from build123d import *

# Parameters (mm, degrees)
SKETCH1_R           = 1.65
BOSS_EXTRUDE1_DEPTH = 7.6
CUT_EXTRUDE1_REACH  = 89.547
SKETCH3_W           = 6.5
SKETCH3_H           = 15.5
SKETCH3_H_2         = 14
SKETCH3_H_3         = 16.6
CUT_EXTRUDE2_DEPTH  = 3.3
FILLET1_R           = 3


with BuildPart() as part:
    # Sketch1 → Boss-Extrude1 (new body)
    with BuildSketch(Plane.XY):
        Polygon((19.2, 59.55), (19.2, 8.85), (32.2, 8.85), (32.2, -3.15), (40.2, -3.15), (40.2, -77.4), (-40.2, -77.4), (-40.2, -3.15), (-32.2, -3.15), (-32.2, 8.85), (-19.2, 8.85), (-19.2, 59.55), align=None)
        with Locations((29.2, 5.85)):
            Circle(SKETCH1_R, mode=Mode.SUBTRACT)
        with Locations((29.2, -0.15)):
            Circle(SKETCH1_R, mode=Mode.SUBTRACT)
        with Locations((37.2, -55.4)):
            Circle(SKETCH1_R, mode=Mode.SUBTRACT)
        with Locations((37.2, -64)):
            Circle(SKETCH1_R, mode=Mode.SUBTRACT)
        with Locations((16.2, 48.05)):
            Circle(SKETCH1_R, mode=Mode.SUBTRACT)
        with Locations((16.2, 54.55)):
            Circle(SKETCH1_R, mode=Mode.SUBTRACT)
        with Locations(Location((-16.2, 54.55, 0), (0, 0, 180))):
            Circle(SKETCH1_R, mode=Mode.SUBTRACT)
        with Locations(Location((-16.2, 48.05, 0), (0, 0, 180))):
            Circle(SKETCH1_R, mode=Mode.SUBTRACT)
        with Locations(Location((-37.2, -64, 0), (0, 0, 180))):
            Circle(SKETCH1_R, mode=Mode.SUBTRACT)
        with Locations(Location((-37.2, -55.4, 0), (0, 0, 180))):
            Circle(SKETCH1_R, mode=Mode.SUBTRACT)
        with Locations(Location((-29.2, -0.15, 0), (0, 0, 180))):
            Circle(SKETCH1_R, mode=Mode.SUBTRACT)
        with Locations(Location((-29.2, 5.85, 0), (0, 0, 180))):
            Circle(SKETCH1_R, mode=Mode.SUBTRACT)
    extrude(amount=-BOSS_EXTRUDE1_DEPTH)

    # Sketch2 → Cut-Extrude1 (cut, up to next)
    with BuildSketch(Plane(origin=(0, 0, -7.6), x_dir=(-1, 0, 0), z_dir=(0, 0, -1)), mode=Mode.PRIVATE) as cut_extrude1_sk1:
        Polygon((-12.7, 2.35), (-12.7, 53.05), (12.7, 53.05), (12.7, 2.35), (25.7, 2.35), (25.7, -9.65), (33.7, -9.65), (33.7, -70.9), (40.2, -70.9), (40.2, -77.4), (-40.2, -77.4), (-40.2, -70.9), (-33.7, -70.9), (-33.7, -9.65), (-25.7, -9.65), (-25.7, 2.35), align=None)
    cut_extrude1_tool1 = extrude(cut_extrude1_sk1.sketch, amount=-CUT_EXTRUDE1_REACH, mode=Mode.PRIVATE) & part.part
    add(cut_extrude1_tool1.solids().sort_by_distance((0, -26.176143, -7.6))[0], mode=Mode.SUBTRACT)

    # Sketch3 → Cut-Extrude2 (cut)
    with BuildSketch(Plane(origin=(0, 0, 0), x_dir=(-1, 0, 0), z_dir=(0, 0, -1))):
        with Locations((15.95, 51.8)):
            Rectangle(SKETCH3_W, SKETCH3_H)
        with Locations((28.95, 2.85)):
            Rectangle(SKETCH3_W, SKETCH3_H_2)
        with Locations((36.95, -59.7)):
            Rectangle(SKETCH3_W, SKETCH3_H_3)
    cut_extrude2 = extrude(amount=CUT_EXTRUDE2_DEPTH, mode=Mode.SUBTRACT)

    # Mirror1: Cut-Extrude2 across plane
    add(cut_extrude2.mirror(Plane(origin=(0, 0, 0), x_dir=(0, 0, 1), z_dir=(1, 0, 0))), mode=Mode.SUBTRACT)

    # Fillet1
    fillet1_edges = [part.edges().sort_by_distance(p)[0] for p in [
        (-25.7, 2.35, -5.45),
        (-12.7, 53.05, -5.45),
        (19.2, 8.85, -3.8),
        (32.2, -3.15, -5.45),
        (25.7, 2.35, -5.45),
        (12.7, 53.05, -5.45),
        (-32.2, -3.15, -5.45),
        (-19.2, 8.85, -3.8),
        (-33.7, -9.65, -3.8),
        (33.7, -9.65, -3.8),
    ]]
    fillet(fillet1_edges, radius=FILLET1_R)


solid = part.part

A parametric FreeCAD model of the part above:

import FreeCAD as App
import Part
import Sketcher
from FreeCAD import Vector
Q = App.Units.Quantity


def edges_at(feature, points):
    """Names of the edges that pass closest to the given points."""
    edges = feature.Shape.Edges
    near = lambda p: min(range(len(edges)), key=lambda i: edges[i].distToShape(Part.Vertex(*p))[0])
    return sorted({f"Edge{near(p) + 1}" for p in points})

doc = App.newDocument("Part")
body = doc.addObject("PartDesign::Body", "Body")

sketch1 = body.newObject("Sketcher::SketchObject", "Sketch")
sketch1.AttachmentSupport = (doc.getObject("XY_Plane"), [""])
sketch1.MapMode = "FlatFace"
sketch1.addGeometry([
    Part.LineSegment(Vector(19.2, 8.8, 0), Vector(19.2, 59.5, 0)),
    Part.LineSegment(Vector(19.2, 59.5, 0), Vector(-19.2, 59.5, 0)),
    Part.LineSegment(Vector(-19.2, 59.5, 0), Vector(-19.2, 8.8, 0)),
    Part.LineSegment(Vector(-19.2, 8.8, 0), Vector(-32.2, 8.8, 0)),
    Part.LineSegment(Vector(-32.2, 8.8, 0), Vector(-32.2, -3.1, 0)),
    Part.LineSegment(Vector(-32.2, -3.1, 0), Vector(-40.2, -3.1, 0)),
    Part.LineSegment(Vector(-40.2, -3.1, 0), Vector(-40.2, -77.4, 0)),
    Part.LineSegment(Vector(-40.2, -77.4, 0), Vector(40.2, -77.4, 0)),
    Part.LineSegment(Vector(40.2, -77.4, 0), Vector(40.2, -3.1, 0)),
    Part.LineSegment(Vector(40.2, -3.1, 0), Vector(32.2, -3.1, 0)),
    Part.LineSegment(Vector(32.2, -3.1, 0), Vector(32.2, 8.8, 0)),
    Part.LineSegment(Vector(32.2, 8.8, 0), Vector(19.2, 8.8, 0)),
    Part.Circle(Vector(37.2, -64, 0), Vector(0, 0, 1), 1.6),
    Part.Circle(Vector(37.2, -55.4, 0), Vector(0, 0, 1), 1.6),
    Part.Circle(Vector(-37.2, -64, 0), Vector(0, 0, 1), 1.6),
    Part.Circle(Vector(-37.2, -55.4, 0), Vector(0, 0, 1), 1.6),
    Part.Circle(Vector(29.2, -0.1, 0), Vector(0, 0, 1), 1.6),
    Part.Circle(Vector(29.2, 5.8, 0), Vector(0, 0, 1), 1.6),
    Part.Circle(Vector(16.2, 48, 0), Vector(0, 0, 1), 1.6),
    Part.Circle(Vector(16.2, 54.5, 0), Vector(0, 0, 1), 1.6),
    Part.Circle(Vector(-29.2, -0.1, 0), Vector(0, 0, 1), 1.6),
    Part.Circle(Vector(-29.2, 5.8, 0), Vector(0, 0, 1), 1.6),
    Part.Circle(Vector(-16.2, 48, 0), Vector(0, 0, 1), 1.6),
    Part.Circle(Vector(-16.2, 54.5, 0), Vector(0, 0, 1), 1.6),
], False)
sketch1.addConstraint([
    Sketcher.Constraint("Coincident", 0, 2, 1, 1),
    Sketcher.Constraint("Coincident", 1, 2, 2, 1),
    Sketcher.Constraint("Coincident", 2, 2, 3, 1),
    Sketcher.Constraint("Coincident", 3, 2, 4, 1),
    Sketcher.Constraint("Coincident", 4, 2, 5, 1),
    Sketcher.Constraint("Coincident", 5, 2, 6, 1),
    Sketcher.Constraint("Coincident", 6, 2, 7, 1),
    Sketcher.Constraint("Coincident", 7, 2, 8, 1),
    Sketcher.Constraint("Coincident", 8, 2, 9, 1),
    Sketcher.Constraint("Coincident", 9, 2, 10, 1),
    Sketcher.Constraint("Coincident", 10, 2, 11, 1),
    Sketcher.Constraint("Coincident", 11, 2, 0, 1),
    Sketcher.Constraint("Vertical", 0),
    Sketcher.Constraint("Horizontal", 1),
    Sketcher.Constraint("Vertical", 2),
    Sketcher.Constraint("Horizontal", 3),
    Sketcher.Constraint("Vertical", 4),
    Sketcher.Constraint("Horizontal", 5),
    Sketcher.Constraint("Vertical", 6),
    Sketcher.Constraint("Horizontal", 7),
    Sketcher.Constraint("Vertical", 8),
    Sketcher.Constraint("Horizontal", 9),
    Sketcher.Constraint("Vertical", 10),
    Sketcher.Constraint("Horizontal", 11),
    Sketcher.Constraint("Equal", 12, 13),
    Sketcher.Constraint("Equal", 13, 14),
    Sketcher.Constraint("Equal", 14, 15),
    Sketcher.Constraint("Equal", 15, 16),
    Sketcher.Constraint("Equal", 16, 17),
    Sketcher.Constraint("Equal", 17, 18),
    Sketcher.Constraint("Equal", 18, 19),
    Sketcher.Constraint("Equal", 19, 20),
    Sketcher.Constraint("Equal", 20, 21),
    Sketcher.Constraint("Equal", 21, 22),
    Sketcher.Constraint("Equal", 22, 23),
    Sketcher.Constraint("Symmetric", 12, 3, 14, 3, -2),
    Sketcher.Constraint("Symmetric", 13, 3, 15, 3, -2),
    Sketcher.Constraint("Symmetric", 16, 3, 20, 3, -2),
    Sketcher.Constraint("Symmetric", 17, 3, 21, 3, -2),
    Sketcher.Constraint("Symmetric", 18, 3, 22, 3, -2),
    Sketcher.Constraint("Symmetric", 19, 3, 23, 3, -2),
    Sketcher.Constraint("Symmetric", 5, 2, 8, 2, -2),
    Sketcher.Constraint("Symmetric", 3, 2, 10, 2, -2),
    Sketcher.Constraint("Vertical", 12, 3, 13, 3),
    Sketcher.Constraint("Vertical", 16, 3, 17, 3),
    Sketcher.Constraint("Vertical", 18, 3, 19, 3),
    Sketcher.Constraint("Equal", 3, 11),
    Sketcher.Constraint("Diameter", 12, Q("3.3 mm")),
    Sketcher.Constraint("DistanceX", 3, 2, 3, 1, Q("13 mm")),
    Sketcher.Constraint("DistanceX", 5, 2, 5, 1, Q("8 mm")),
    Sketcher.Constraint("DistanceY", 4, 2, 4, 1, Q("12 mm")),
    Sketcher.Constraint("DistanceX", 1, 2, 1, 1, Q("38.4 mm")),
    Sketcher.Constraint("DistanceY", 0, 1, 0, 2, Q("50.7 mm")),
    Sketcher.Constraint("DistanceY", 12, 3, -1, 1, Q("64 mm")),
    Sketcher.Constraint("DistanceX", 16, 3, 13, 3, Q("8 mm")),
    Sketcher.Constraint("DistanceY", 16, 3, 17, 3, Q("6 mm")),
    Sketcher.Constraint("DistanceX", 18, 3, 17, 3, Q("13 mm")),
    Sketcher.Constraint("DistanceX", 19, 3, 0, 2, Q("3 mm")),
    Sketcher.Constraint("DistanceY", 19, 3, 0, 2, Q("5 mm")),
    Sketcher.Constraint("DistanceY", 21, 3, 2, 2, Q("3 mm")),
    Sketcher.Constraint("DistanceY", 6, 2, 15, 3, Q("22 mm")),
    Sketcher.Constraint("DistanceY", 6, 2, 6, 1, Q("74.25 mm")),
    Sketcher.Constraint("DistanceY", 13, 3, -1, 1, Q("55.4 mm")),
    Sketcher.Constraint("DistanceY", 17, 3, 18, 3, Q("42.2 mm")),
])
pad1 = body.newObject("PartDesign::Pad", "Pad")
pad1.Profile = sketch1
pad1.Length = 7.6
pad1.Reversed = True

sketch2 = body.newObject("Sketcher::SketchObject", "Sketch001")
sketch2.AttachmentSupport = (doc.getObject("XY_Plane"), [""])
sketch2.MapMode = "FlatFace"
sketch2.AttachmentOffset = App.Placement(Vector(0, 0, -7.6), App.Rotation())
sketch2.addGeometry([
    Part.LineSegment(Vector(13, 53, 0), Vector(13, 2, 0)),
    Part.LineSegment(Vector(13, 2, 0), Vector(26, 2, 0)),
    Part.LineSegment(Vector(26, 2, 0), Vector(26, -10, 0)),
    Part.LineSegment(Vector(26, -10, 0), Vector(34, -10, 0)),
    Part.LineSegment(Vector(34, -10, 0), Vector(34, -71, 0)),
    Part.LineSegment(Vector(34, -71, 0), Vector(40, -71, 0)),
    Part.LineSegment(Vector(40, -71, 0), Vector(40, -77, 0)),
    Part.LineSegment(Vector(40, -77, 0), Vector(-40, -77, 0)),
    Part.LineSegment(Vector(-40, -77, 0), Vector(-40, -71, 0)),
    Part.LineSegment(Vector(-40, -71, 0), Vector(-34, -71, 0)),
    Part.LineSegment(Vector(-34, -71, 0), Vector(-34, -10, 0)),
    Part.LineSegment(Vector(-34, -10, 0), Vector(-26, -10, 0)),
    Part.LineSegment(Vector(-26, -10, 0), Vector(-26, 2, 0)),
    Part.LineSegment(Vector(-26, 2, 0), Vector(-13, 2, 0)),
    Part.LineSegment(Vector(-13, 2, 0), Vector(-13, 53, 0)),
    Part.LineSegment(Vector(-13, 53, 0), Vector(13, 53, 0)),
], False)
sketch2.addConstraint([
    Sketcher.Constraint("Coincident", 0, 2, 1, 1),
    Sketcher.Constraint("Coincident", 1, 2, 2, 1),
    Sketcher.Constraint("Coincident", 2, 2, 3, 1),
    Sketcher.Constraint("Coincident", 3, 2, 4, 1),
    Sketcher.Constraint("Coincident", 4, 2, 5, 1),
    Sketcher.Constraint("Coincident", 5, 2, 6, 1),
    Sketcher.Constraint("Coincident", 6, 2, 7, 1),
    Sketcher.Constraint("Coincident", 7, 2, 8, 1),
    Sketcher.Constraint("Coincident", 8, 2, 9, 1),
    Sketcher.Constraint("Coincident", 9, 2, 10, 1),
    Sketcher.Constraint("Coincident", 10, 2, 11, 1),
    Sketcher.Constraint("Coincident", 11, 2, 12, 1),
    Sketcher.Constraint("Coincident", 12, 2, 13, 1),
    Sketcher.Constraint("Coincident", 13, 2, 14, 1),
    Sketcher.Constraint("Coincident", 14, 2, 15, 1),
    Sketcher.Constraint("Coincident", 15, 2, 0, 1),
    Sketcher.Constraint("Vertical", 0),
    Sketcher.Constraint("Horizontal", 1),
    Sketcher.Constraint("Vertical", 2),
    Sketcher.Constraint("Horizontal", 3),
    Sketcher.Constraint("Vertical", 4),
    Sketcher.Constraint("Horizontal", 5),
    Sketcher.Constraint("Vertical", 6),
    Sketcher.Constraint("Horizontal", 7),
    Sketcher.Constraint("Vertical", 8),
    Sketcher.Constraint("Horizontal", 9),
    Sketcher.Constraint("Vertical", 10),
    Sketcher.Constraint("Horizontal", 11),
    Sketcher.Constraint("Vertical", 12),
    Sketcher.Constraint("Horizontal", 13),
    Sketcher.Constraint("Vertical", 14),
    Sketcher.Constraint("Horizontal", 15),
    Sketcher.Constraint("Symmetric", 5, 2, 8, 2, -2),
    Sketcher.Constraint("Symmetric", 3, 2, 10, 2, -2),
    Sketcher.Constraint("Symmetric", 1, 2, 12, 2, -2),
    Sketcher.Constraint("Equal", 1, 13),
    Sketcher.Constraint("Equal", 9, 6),
    Sketcher.Constraint("DistanceX", 1, 1, 1, 2, Q("13 mm")),
    Sketcher.Constraint("DistanceX", 3, 1, 3, 2, Q("8 mm")),
    Sketcher.Constraint("DistanceY", 2, 2, 2, 1, Q("12 mm")),
    Sketcher.Constraint("DistanceX", 5, 1, 5, 2, Q("6.5 mm")),
    Sketcher.Constraint("DistanceX", 7, 2, 7, 1, Q("80.4 mm")),
    Sketcher.Constraint("DistanceY", 0, 2, 0, 1, Q("50.7 mm")),
    Sketcher.Constraint("DistanceY", 4, 2, 4, 1, Q("61.25 mm")),
    Sketcher.Constraint("DistanceY", 4, 2, -1, 1, Q("70.9 mm")),
])
pocket1 = body.newObject("PartDesign::Pocket", "Pocket")
pocket1.Profile = sketch2
pocket1.Type = "UpToFirst"
pocket1.Reversed = True

sketch3 = body.newObject("Sketcher::SketchObject", "Sketch002")
sketch3.AttachmentSupport = (doc.getObject("XY_Plane"), [""])
sketch3.MapMode = "FlatFace"
sketch3.addGeometry([
    Part.LineSegment(Vector(-13, 60, 0), Vector(-13, 44, 0)),
    Part.LineSegment(Vector(-13, 44, 0), Vector(-19, 44, 0)),
    Part.LineSegment(Vector(-19, 44, 0), Vector(-19, 60, 0)),
    Part.LineSegment(Vector(-19, 60, 0), Vector(-13, 60, 0)),
    Part.LineSegment(Vector(-26, 10, 0), Vector(-26, -4, 0)),
    Part.LineSegment(Vector(-26, -4, 0), Vector(-32, -4, 0)),
    Part.LineSegment(Vector(-32, -4, 0), Vector(-32, 10, 0)),
    Part.LineSegment(Vector(-32, 10, 0), Vector(-26, 10, 0)),
    Part.LineSegment(Vector(-34, -51, 0), Vector(-34, -68, 0)),
    Part.LineSegment(Vector(-34, -68, 0), Vector(-40, -68, 0)),
    Part.LineSegment(Vector(-40, -68, 0), Vector(-40, -51, 0)),
    Part.LineSegment(Vector(-40, -51, 0), Vector(-34, -51, 0)),
], False)
sketch3.addConstraint([
    Sketcher.Constraint("Coincident", 0, 2, 1, 1),
    Sketcher.Constraint("Coincident", 1, 2, 2, 1),
    Sketcher.Constraint("Coincident", 2, 2, 3, 1),
    Sketcher.Constraint("Coincident", 3, 2, 0, 1),
    Sketcher.Constraint("Coincident", 4, 2, 5, 1),
    Sketcher.Constraint("Coincident", 5, 2, 6, 1),
    Sketcher.Constraint("Coincident", 6, 2, 7, 1),
    Sketcher.Constraint("Coincident", 7, 2, 4, 1),
    Sketcher.Constraint("Coincident", 8, 2, 9, 1),
    Sketcher.Constraint("Coincident", 9, 2, 10, 1),
    Sketcher.Constraint("Coincident", 10, 2, 11, 1),
    Sketcher.Constraint("Coincident", 11, 2, 8, 1),
    Sketcher.Constraint("Vertical", 0),
    Sketcher.Constraint("Horizontal", 1),
    Sketcher.Constraint("Vertical", 2),
    Sketcher.Constraint("Horizontal", 3),
    Sketcher.Constraint("Vertical", 4),
    Sketcher.Constraint("Horizontal", 5),
    Sketcher.Constraint("Vertical", 6),
    Sketcher.Constraint("Horizontal", 7),
    Sketcher.Constraint("Vertical", 8),
    Sketcher.Constraint("Horizontal", 9),
    Sketcher.Constraint("Vertical", 10),
    Sketcher.Constraint("Horizontal", 11),
    Sketcher.Constraint("Equal", 3, 5),
    Sketcher.Constraint("Equal", 7, 9),
    Sketcher.Constraint("DistanceY", 4, 2, 4, 1, Q("14 mm")),
    Sketcher.Constraint("DistanceX", 1, 2, 1, 1, Q("6.5 mm")),
    Sketcher.Constraint("DistanceY", 0, 2, 0, 1, Q("15.5 mm")),
    Sketcher.Constraint("DistanceY", 8, 2, 8, 1, Q("16.6 mm")),
    Sketcher.Constraint("DistanceY", 8, 2, -1, 1, Q("68 mm")),
    Sketcher.Constraint("DistanceX", 4, 2, 0, 2, Q("13 mm")),
    Sketcher.Constraint("DistanceX", 8, 2, 4, 2, Q("8 mm")),
    Sketcher.Constraint("DistanceX", 0, 2, -1, 1, Q("12.7 mm")),
    Sketcher.Constraint("DistanceY", 4, 2, 1, 2, Q("48.2 mm")),
    Sketcher.Constraint("DistanceY", -1, 1, 0, 2, Q("44.05 mm")),
])
pocket2 = body.newObject("PartDesign::Pocket", "Pocket001")
pocket2.Profile = sketch3
pocket2.Length = 3.3
doc.recompute()

mirrored = body.newObject("PartDesign::Mirrored", "Mirrored")
mirrored.Originals = [pocket2]
mirrored.MirrorPlane = (doc.getObject("YZ_Plane"), [""])
body.Tip = mirrored
doc.recompute()

fillet = body.newObject("PartDesign::Fillet", "Fillet")
fillet.Base = (mirrored, edges_at(mirrored, [
    (-25.7, 2.35, -5.45),
    (-12.7, 53.05, -5.45),
    (19.2, 8.85, -3.8),
    (32.2, -3.15, -5.45),
    (25.7, 2.35, -5.45),
    (12.7, 53.05, -5.45),
    (-32.2, -3.15, -5.45),
    (-19.2, 8.85, -3.8),
    (-33.7, -9.65, -3.8),
    (33.7, -9.65, -3.8),
]))
fillet.Radius = 3

doc.recompute()
